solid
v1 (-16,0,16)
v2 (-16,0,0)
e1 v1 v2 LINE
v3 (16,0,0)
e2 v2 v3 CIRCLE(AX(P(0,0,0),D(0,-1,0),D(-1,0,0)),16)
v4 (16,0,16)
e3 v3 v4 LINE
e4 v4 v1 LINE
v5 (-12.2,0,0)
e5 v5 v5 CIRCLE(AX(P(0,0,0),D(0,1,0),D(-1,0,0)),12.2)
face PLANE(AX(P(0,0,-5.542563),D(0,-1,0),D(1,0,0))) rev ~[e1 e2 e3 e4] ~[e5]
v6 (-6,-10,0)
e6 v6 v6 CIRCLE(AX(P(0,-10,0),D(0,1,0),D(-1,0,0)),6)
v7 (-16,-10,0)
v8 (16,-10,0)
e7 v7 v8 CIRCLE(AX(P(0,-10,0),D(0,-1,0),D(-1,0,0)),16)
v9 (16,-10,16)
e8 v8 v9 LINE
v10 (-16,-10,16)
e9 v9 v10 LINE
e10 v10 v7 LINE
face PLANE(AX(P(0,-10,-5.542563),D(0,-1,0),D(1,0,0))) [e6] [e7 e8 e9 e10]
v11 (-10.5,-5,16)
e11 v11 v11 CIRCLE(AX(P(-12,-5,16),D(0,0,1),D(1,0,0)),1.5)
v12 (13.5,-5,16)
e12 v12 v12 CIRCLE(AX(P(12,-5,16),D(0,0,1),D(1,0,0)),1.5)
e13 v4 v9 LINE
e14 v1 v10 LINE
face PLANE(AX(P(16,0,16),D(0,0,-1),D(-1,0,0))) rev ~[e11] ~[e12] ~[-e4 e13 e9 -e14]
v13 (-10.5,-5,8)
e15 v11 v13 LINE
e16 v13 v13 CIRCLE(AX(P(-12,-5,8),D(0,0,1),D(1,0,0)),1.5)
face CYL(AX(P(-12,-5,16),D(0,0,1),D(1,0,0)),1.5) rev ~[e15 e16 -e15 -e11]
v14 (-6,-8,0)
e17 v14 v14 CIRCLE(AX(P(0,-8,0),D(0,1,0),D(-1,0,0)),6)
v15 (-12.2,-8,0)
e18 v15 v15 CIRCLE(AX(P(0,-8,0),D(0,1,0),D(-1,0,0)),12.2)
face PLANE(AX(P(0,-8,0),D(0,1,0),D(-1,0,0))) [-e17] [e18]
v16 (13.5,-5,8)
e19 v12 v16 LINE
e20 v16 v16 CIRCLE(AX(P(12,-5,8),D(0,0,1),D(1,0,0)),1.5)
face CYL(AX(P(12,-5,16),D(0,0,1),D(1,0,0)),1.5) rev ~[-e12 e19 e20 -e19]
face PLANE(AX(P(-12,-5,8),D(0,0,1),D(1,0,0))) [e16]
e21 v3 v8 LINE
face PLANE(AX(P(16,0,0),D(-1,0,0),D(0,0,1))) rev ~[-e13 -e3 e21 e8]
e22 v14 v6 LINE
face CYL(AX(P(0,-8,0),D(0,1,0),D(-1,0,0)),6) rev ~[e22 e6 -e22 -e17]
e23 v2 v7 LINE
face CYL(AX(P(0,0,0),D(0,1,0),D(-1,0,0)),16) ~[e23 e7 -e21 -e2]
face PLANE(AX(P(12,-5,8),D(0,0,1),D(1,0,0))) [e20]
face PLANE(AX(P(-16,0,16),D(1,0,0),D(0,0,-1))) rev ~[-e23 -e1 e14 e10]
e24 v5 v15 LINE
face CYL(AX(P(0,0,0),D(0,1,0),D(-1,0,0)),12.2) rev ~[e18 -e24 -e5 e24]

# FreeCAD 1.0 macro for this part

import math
import FreeCAD as App
import Part
import Sketcher
from FreeCAD import Vector
Q = App.Units.Quantity

doc = App.newDocument("Part")
params = doc.addObject("Spreadsheet::Sheet", "Params")
for row, (alias, value) in enumerate([
    ("sketch1_radius", "16 mm"),
    ("sketch1_height", "16 mm"),
    ("pad1_length", "10 mm"),
    ("sketch2_diameter", "24.4 mm"),
    ("pocket1_length", "8 mm"),
    ("sketch3_diameter", "12 mm"),
    ("pocket2_length", "25 mm"),
    ("sketch4_diameter", "3 mm"),
    ("pocket3_length", "8 mm"),
], start=1):
    params.set(f"A{row}", alias)
    params.set(f"B{row}", "=" + value)
    params.setAlias(f"B{row}", alias)

body = doc.addObject("PartDesign::Body", "Body")

# Sketch on XZ plane
sketch1 = body.newObject("Sketcher::SketchObject", "Sketch")
sketch1.AttachmentSupport = (doc.getObject("XZ_Plane"), [""])
sketch1.MapMode = "FlatFace"
sketch1.addGeometry([
    Part.ArcOfCircle(Part.Circle(Vector(0, 0, 0), Vector(0, 0, 1), 16), math.radians(180), math.radians(360)),
    Part.LineSegment(Vector(16, 0, 0), Vector(16, 16, 0)),
    Part.LineSegment(Vector(16, 16, 0), Vector(-16, 16, 0)),
    Part.LineSegment(Vector(-16, 16, 0), Vector(-16, 0, 0)),
], False)
sketch1.addConstraint([
    Sketcher.Constraint("Tangent", 0, 2, 1, 1),
    Sketcher.Constraint("Coincident", 1, 2, 2, 1),
    Sketcher.Constraint("Coincident", 2, 2, 3, 1),
    Sketcher.Constraint("Tangent", 3, 2, 0, 1),
    Sketcher.Constraint("Vertical", 1),
    Sketcher.Constraint("Horizontal", 2),
    Sketcher.Constraint("Vertical", 3),
    Sketcher.Constraint("Coincident", 0, 3, -1, 1),
    Sketcher.Constraint("Radius", 0, Q("16 mm")),
    Sketcher.Constraint("DistanceY", 1, 1, 1, 2, Q("16 mm")),
])
sketch1.setExpression("Constraints[8]", "Params.sketch1_radius")
sketch1.setExpression("Constraints[9]", "Params.sketch1_height")
pad1 = body.newObject("PartDesign::Pad", "Pad")
pad1.Profile = sketch1
pad1.setExpression("Length", "Params.pad1_length")

# Sketch on XZ plane
sketch2 = body.newObject("Sketcher::SketchObject", "Sketch001")
sketch2.AttachmentSupport = (doc.getObject("XZ_Plane"), [""])
sketch2.MapMode = "FlatFace"
sketch2.addGeometry(Part.Circle(Vector(0, 0, 0), Vector(0, 0, 1), 12.2), False)
sketch2.addConstraint([
    Sketcher.Constraint("Coincident", 0, 3, -1, 1),
    Sketcher.Constraint("Diameter", 0, Q("24.4 mm")),
])
sketch2.setExpression("Constraints[1]", "Params.sketch2_diameter")
pocket1 = body.newObject("PartDesign::Pocket", "Pocket")
pocket1.Profile = sketch2
pocket1.setExpression("Length", "Params.pocket1_length")
pocket1.Reversed = True

# Sketch on XZ plane
sketch3 = body.newObject("Sketcher::SketchObject", "Sketch002")
sketch3.AttachmentSupport = (doc.getObject("XZ_Plane"), [""])
sketch3.MapMode = "FlatFace"
sketch3.AttachmentOffset = App.Placement(Vector(0, 0, 8), App.Rotation())
sketch3.addGeometry(Part.Circle(Vector(0, 0, 0), Vector(0, 0, 1), 6), False)
sketch3.addConstraint([
    Sketcher.Constraint("Coincident", 0, 3, -1, 1),
    Sketcher.Constraint("Diameter", 0, Q("12 mm")),
])
sketch3.setExpression("Constraints[1]", "Params.sketch3_diameter")
pocket2 = body.newObject("PartDesign::Pocket", "Pocket001")
pocket2.Profile = sketch3
pocket2.setExpression("Length", "Params.pocket2_length")
pocket2.Reversed = True

# Sketch on XY plane
sketch4 = body.newObject("Sketcher::SketchObject", "Sketch003")
sketch4.AttachmentSupport = (doc.getObject("XY_Plane"), [""])
sketch4.MapMode = "FlatFace"
sketch4.AttachmentOffset = App.Placement(Vector(0, 0, 16), App.Rotation())
sketch4.addGeometry([
    Part.Circle(Vector(-12, -5, 0), Vector(0, 0, 1), 1.5),
    Part.Circle(Vector(12, -5, 0), Vector(0, 0, 1), 1.5),
], False)
sketch4.addConstraint([
    Sketcher.Constraint("Equal", 0, 1),
    Sketcher.Constraint("Symmetric", 0, 3, 1, 3, -2),
    Sketcher.Constraint("Diameter", 0, Q("3 mm")),
    Sketcher.Constraint("DistanceX", 0, 3, -1, 1, Q("12 mm")),
    Sketcher.Constraint("DistanceY", 0, 3, -1, 1, Q("5 mm")),
])
sketch4.setExpression("Constraints[2]", "Params.sketch4_diameter")
pocket3 = body.newObject("PartDesign::Pocket", "Pocket002")
pocket3.Profile = sketch4
pocket3.setExpression("Length", "Params.pocket3_length")

doc.recompute()
